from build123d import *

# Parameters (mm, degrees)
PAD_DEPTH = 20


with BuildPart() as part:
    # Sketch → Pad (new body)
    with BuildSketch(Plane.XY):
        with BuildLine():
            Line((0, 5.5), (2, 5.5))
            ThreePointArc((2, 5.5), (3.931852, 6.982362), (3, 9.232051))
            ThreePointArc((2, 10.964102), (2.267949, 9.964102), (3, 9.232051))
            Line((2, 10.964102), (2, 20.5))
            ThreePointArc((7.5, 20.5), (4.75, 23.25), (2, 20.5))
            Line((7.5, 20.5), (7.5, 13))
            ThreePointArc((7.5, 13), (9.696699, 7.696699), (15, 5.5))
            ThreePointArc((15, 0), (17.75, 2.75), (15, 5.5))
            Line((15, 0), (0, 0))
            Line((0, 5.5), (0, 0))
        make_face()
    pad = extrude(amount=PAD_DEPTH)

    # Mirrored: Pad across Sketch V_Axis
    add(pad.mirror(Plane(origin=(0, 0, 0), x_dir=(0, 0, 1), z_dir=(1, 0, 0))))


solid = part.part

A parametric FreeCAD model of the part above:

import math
import FreeCAD as App
import Part
import Sketcher
from FreeCAD import Vector
Q = App.Units.Quantity

doc = App.newDocument("Part")
body = doc.addObject("PartDesign::Body", "Body")

sketch1 = body.newObject("Sketcher::SketchObject", "Sketch")
sketch1.AttachmentSupport = (doc.getObject("XY_Plane"), [""])
sketch1.MapMode = "FlatFace"
sketch1.addGeometry(Part.LineSegment(Vector(2, 5.5, 0), Vector(0, 5.5, 0)), False)
sketch1.addGeometry(Part.LineSegment(Vector(0, 5.5, 0), Vector(0, 0, 0)), False)
sketch1.addGeometry(Part.LineSegment(Vector(0, 0, 0), Vector(15, 0, 0)), False)
sketch1.addGeometry(Part.ArcOfCircle(Part.Circle(Vector(15, 2.8, 0), Vector(0, 0, 1), 2.8), math.radians(-90), math.radians(90)), False)
sketch1.addGeometry(Part.ArcOfCircle(Part.Circle(Vector(15, 13, 0), Vector(0, 0, 1), 7.5), math.radians(180), math.radians(270)), False)
sketch1.addGeometry(Part.LineSegment(Vector(7.5, 13, 0), Vector(7.5, 20.5, 0)), False)
sketch1.addGeometry(Part.ArcOfCircle(Part.Circle(Vector(4.8, 20.5, 0), Vector(0, 0, 1), 2.8), math.radians(0), math.radians(180)), False)
sketch1.addGeometry(Part.LineSegment(Vector(2, 20.5, 0), Vector(2, 11, 0)), False)
sketch1.addGeometry(Part.ArcOfCircle(Part.Circle(Vector(4, 11, 0), Vector(0, 0, 1), 2), math.radians(180), math.radians(240)), False)
sketch1.addGeometry(Part.ArcOfCircle(Part.Circle(Vector(2, 7.5, 0), Vector(0, 0, 1), 2), math.radians(-90), math.radians(60)), False)
sketch1.addConstraint(Sketcher.Constraint("Coincident", 0, 2, 1, 1))
sketch1.addConstraint(Sketcher.Constraint("Coincident", 1, 2, 2, 1))
sketch1.addConstraint(Sketcher.Constraint("Tangent", 2, 2, 3, 1))
sketch1.addConstraint(Sketcher.Constraint("Tangent", 3, 2, 4, 2))
sketch1.addConstraint(Sketcher.Constraint("Tangent", 4, 1, 5, 1))
sketch1.addConstraint(Sketcher.Constraint("Tangent", 5, 2, 6, 1))
sketch1.addConstraint(Sketcher.Constraint("Tangent", 6, 2, 7, 1))
sketch1.addConstraint(Sketcher.Constraint("Tangent", 7, 2, 8, 1))
sketch1.addConstraint(Sketcher.Constraint("Tangent", 8, 2, 9, 2))
sketch1.addConstraint(Sketcher.Constraint("Tangent", 9, 1, 0, 1))
sketch1.addConstraint(Sketcher.Constraint("Horizontal", 0))
sketch1.addConstraint(Sketcher.Constraint("Vertical", 1))
sketch1.addConstraint(Sketcher.Constraint("Horizontal", 2))
sketch1.addConstraint(Sketcher.Constraint("Vertical", 5))
sketch1.addConstraint(Sketcher.Constraint("Vertical", 7))
sketch1.addConstraint(Sketcher.Constraint("Coincident", 1, 2, -1, 1))
sketch1.addConstraint(Sketcher.Constraint("Equal", 3, 6))
sketch1.addConstraint(Sketcher.Constraint("Equal", 8, 9))
sketch1.addConstraint(Sketcher.Constraint("Horizontal", 0, 2, 3, 2))
sketch1.addConstraint(Sketcher.Constraint("Vertical", 3, 3, 4, 3))
sketch1.addConstraint(Sketcher.Constraint("Vertical", 9, 3, 6, 2))
sketch1.addConstraint(Sketcher.Constraint("Radius", 8, Q("2 mm")))
sketch1.addConstraint(Sketcher.Constraint("Radius", 4, Q("7.5 mm")))
sketch1.addConstraint(Sketcher.Constraint("DistanceX", 0, 2, 0, 1, Q("2 mm")))
sketch1.addConstraint(Sketcher.Constraint("DistanceX", 2, 1, 2, 2, Q("15 mm")))
sketch1.addConstraint(Sketcher.Constraint("DistanceY", 5, 1, 5, 2, Q("7.5 mm")))
pad1 = body.newObject("PartDesign::Pad", "Pad")
pad1.Profile = sketch1
pad1.Length = 20
doc.recompute()

mirrored = body.newObject("PartDesign::Mirrored", "Mirrored")
mirrored.Originals = [pad1]
mirrored.MirrorPlane = (doc.getObject("YZ_Plane"), [""])
body.Tip = mirrored

doc.recompute()
